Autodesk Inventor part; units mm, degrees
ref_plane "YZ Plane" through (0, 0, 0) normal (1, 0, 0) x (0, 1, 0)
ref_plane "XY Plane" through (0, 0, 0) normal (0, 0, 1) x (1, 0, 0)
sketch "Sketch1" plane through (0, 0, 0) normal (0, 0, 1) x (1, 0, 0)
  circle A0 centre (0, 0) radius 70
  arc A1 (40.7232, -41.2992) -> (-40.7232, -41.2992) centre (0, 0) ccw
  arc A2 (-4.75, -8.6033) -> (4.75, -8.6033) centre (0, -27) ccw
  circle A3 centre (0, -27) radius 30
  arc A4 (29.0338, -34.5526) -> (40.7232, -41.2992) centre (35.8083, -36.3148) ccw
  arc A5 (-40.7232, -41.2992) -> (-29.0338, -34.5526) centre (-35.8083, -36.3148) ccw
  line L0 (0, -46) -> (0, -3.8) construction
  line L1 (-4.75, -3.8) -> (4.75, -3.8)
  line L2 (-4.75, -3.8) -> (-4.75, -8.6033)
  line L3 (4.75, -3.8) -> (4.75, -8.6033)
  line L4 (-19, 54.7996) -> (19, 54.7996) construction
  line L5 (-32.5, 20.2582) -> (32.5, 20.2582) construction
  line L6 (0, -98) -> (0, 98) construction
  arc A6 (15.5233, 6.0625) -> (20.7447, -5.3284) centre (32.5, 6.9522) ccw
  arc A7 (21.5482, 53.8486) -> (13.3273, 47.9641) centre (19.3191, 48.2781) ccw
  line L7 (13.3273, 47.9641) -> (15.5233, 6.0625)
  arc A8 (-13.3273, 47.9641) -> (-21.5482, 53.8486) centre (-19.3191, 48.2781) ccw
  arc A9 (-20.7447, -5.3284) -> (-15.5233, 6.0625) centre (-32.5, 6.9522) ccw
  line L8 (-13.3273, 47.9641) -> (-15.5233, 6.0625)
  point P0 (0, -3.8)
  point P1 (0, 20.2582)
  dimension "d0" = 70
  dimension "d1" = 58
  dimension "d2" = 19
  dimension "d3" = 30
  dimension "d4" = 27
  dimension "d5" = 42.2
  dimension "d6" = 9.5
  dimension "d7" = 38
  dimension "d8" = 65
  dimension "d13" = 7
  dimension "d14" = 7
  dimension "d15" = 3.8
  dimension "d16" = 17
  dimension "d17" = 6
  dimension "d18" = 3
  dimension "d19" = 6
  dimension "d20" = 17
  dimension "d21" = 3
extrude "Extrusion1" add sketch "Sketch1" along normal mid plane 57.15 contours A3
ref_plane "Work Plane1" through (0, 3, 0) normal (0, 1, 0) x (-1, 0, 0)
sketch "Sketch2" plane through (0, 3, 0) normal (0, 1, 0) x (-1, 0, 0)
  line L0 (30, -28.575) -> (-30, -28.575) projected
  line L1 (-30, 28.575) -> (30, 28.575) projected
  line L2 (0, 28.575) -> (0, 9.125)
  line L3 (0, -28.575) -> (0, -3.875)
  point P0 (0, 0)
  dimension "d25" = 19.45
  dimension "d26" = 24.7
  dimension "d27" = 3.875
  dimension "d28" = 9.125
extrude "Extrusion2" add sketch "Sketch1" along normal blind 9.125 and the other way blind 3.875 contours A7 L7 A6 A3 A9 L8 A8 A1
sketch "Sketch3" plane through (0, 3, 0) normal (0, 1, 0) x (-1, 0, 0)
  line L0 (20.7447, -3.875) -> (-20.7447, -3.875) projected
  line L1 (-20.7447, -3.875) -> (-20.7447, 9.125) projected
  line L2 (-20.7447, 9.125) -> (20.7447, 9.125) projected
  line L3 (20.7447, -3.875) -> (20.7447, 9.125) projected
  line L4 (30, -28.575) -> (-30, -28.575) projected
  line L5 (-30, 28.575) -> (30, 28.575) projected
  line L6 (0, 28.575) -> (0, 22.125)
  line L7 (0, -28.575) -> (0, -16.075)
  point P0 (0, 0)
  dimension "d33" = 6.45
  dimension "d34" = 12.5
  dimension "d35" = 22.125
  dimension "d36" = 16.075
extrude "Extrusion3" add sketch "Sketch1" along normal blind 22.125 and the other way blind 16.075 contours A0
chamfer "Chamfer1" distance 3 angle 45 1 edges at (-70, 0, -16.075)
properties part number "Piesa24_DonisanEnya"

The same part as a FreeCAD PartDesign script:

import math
import FreeCAD as App
import Part
import Sketcher
from FreeCAD import Vector
Q = App.Units.Quantity


def edges_at(feature, points):
    """Names of the edges that pass closest to the given points."""
    edges = feature.Shape.Edges
    near = lambda p: min(range(len(edges)), key=lambda i: edges[i].distToShape(Part.Vertex(*p))[0])
    return sorted({f"Edge{near(p) + 1}" for p in points})

doc = App.newDocument("Part")
params = doc.addObject("Spreadsheet::Sheet", "Params")
for row, (alias, value) in enumerate([
    ("sketch1_diameter", "60 mm"),
    ("sketch1_radius", "19 mm"),
    ("sketch1_width", "9.5 mm"),
    ("pad1_length", "57.15 mm"),
    ("sketch2_radius", "6 mm"),
    ("sketch2_radius2", "58 mm"),
    ("sketch2_radius3", "17 mm"),
    ("sketch2_radius4", "30 mm"),
    ("pad2_length", "9.125 mm"),
    ("pad2_length2", "3.875 mm"),
    ("sketch3_diameter", "140 mm"),
    ("sketch3_radius", "58 mm"),
    ("sketch3_radius2", "7 mm"),
    ("sketch3_radius3", "30 mm"),
    ("pad3_length", "22.125 mm"),
    ("pad3_length2", "16.075 mm"),
    ("chamfer_size", "3 mm"),
], start=1):
    params.set(f"A{row}", alias)
    params.set(f"B{row}", "=" + value)
    params.setAlias(f"B{row}", alias)

body = doc.addObject("PartDesign::Body", "Body")

sketch1 = doc.addObject("Sketcher::SketchObject", "Sketch")
body.addObject(sketch1)
sketch1.AttachmentSupport = (doc.XY_Plane, [""])
sketch1.MapMode = "FlatFace"
sketch1.addGeometry([
    Part.Circle(Vector(0, -27, 0), Vector(0, 0, 1), 30),
    Part.ArcOfCircle(Part.Circle(Vector(0, -27, 0), Vector(0, 0, 1), 19), math.radians(104), math.radians(436)),
    Part.LineSegment(Vector(-4.8, -8.6, 0), Vector(-4.8, -3.8, 0)),
    Part.LineSegment(Vector(-4.8, -3.8, 0), Vector(4.8, -3.8, 0)),
    Part.LineSegment(Vector(4.8, -3.8, 0), Vector(4.8, -8.6, 0)),
], False)
sketch1.addConstraint([
    Sketcher.Constraint("Coincident", 1, 1, 2, 1),
    Sketcher.Constraint("Coincident", 2, 2, 3, 1),
    Sketcher.Constraint("Coincident", 3, 2, 4, 1),
    Sketcher.Constraint("Coincident", 4, 2, 1, 2),
    Sketcher.Constraint("Vertical", 2),
    Sketcher.Constraint("Horizontal", 3),
    Sketcher.Constraint("Vertical", 4),
    Sketcher.Constraint("Coincident", 1, 3, 0, 3),
    Sketcher.Constraint("Symmetric", 1, 1, 4, 2, -2),
    Sketcher.Constraint("Diameter", 0, 60.0),
    Sketcher.Constraint("Radius", 1, 19.0),
    Sketcher.Constraint("DistanceX", 3, 1, 3, 2, 9.5),
    Sketcher.Constraint("DistanceY", 0, 3, -1, 1, 27.0),
    Sketcher.Constraint("DistanceY", 2, 2, -1, 1, 3.8),
])
sketch1.setExpression("Constraints[9]", "Params.sketch1_diameter")
sketch1.setExpression("Constraints[10]", "Params.sketch1_radius")
sketch1.setExpression("Constraints[11]", "Params.sketch1_width")
pad1 = doc.addObject("PartDesign::Pad", "Pad")
body.addObject(pad1)
pad1.Profile = sketch1
pad1.setExpression("Length", "Params.pad1_length")
pad1.Midplane = True

sketch2 = doc.addObject("Sketcher::SketchObject", "Sketch001")
body.addObject(sketch2)
sketch2.AttachmentSupport = (doc.XY_Plane, [""])
sketch2.MapMode = "FlatFace"
sketch2.addGeometry([
    Part.ArcOfCircle(Part.Circle(Vector(19, 48, 0), Vector(0, 0, 1), 6), math.radians(68), math.radians(183)),
    Part.ArcOfCircle(Part.Circle(Vector(0, 0, 0), Vector(0, 0, 1), 58), math.radians(68), math.radians(112)),
    Part.ArcOfCircle(Part.Circle(Vector(-19, 48, 0), Vector(0, 0, 1), 6), math.radians(-3), math.radians(112)),
    Part.LineSegment(Vector(-13, 48, 0), Vector(-16, 6, 0)),
    Part.ArcOfCircle(Part.Circle(Vector(-32, 7, 0), Vector(0, 0, 1), 17), math.radians(-46), math.radians(-3)),
    Part.ArcOfCircle(Part.Circle(Vector(0, -27, 0), Vector(0, 0, 1), 30), math.radians(46), math.radians(134)),
    Part.ArcOfCircle(Part.Circle(Vector(32, 7, 0), Vector(0, 0, 1), 17), math.radians(-177), math.radians(-134)),
    Part.LineSegment(Vector(16, 6, 0), Vector(13, 48, 0)),
], False)
sketch2.addConstraint([
    Sketcher.Constraint("Tangent", 0, 1, 1, 1),
    Sketcher.Constraint("Tangent", 1, 2, 2, 2),
    Sketcher.Constraint("Tangent", 2, 1, 3, 1),
    Sketcher.Constraint("Tangent", 3, 2, 4, 2),
    Sketcher.Constraint("Tangent", 4, 1, 5, 2),
    Sketcher.Constraint("Tangent", 5, 1, 6, 2),
    Sketcher.Constraint("Tangent", 6, 1, 7, 1),
    Sketcher.Constraint("Tangent", 7, 2, 0, 2),
    Sketcher.Constraint("Coincident", 1, 3, -1, 1),
    Sketcher.Constraint("Equal", 0, 2),
    Sketcher.Constraint("Equal", 4, 6),
    Sketcher.Constraint("Symmetric", 4, 3, 6, 3, -2),
    Sketcher.Constraint("Horizontal", 0, 3, 2, 3),
    Sketcher.Constraint("Radius", 0, 6.0),
    Sketcher.Constraint("Radius", 1, 58.0),
    Sketcher.Constraint("Radius", 4, 17.0),
    Sketcher.Constraint("Radius", 5, 30.0),
    Sketcher.Constraint("DistanceY", 5, 3, -1, 1, 27.0),
    Sketcher.Constraint("DistanceX", 4, 3, 6, 3, 65.0),
    Sketcher.Constraint("Angle", 3, Q("-93 deg")),
])
sketch2.setExpression("Constraints[13]", "Params.sketch2_radius")
sketch2.setExpression("Constraints[14]", "Params.sketch2_radius2")
sketch2.setExpression("Constraints[15]", "Params.sketch2_radius3")
sketch2.setExpression("Constraints[16]", "Params.sketch2_radius4")
pad2 = doc.addObject("PartDesign::Pad", "Pad001")
body.addObject(pad2)
pad2.Profile = sketch2
pad2.Type = "TwoLengths"
pad2.setExpression("Length", "Params.pad2_length")
pad2.setExpression("Length2", "Params.pad2_length2")

sketch3 = doc.addObject("Sketcher::SketchObject", "Sketch002")
body.addObject(sketch3)
sketch3.AttachmentSupport = (doc.XY_Plane, [""])
sketch3.MapMode = "FlatFace"
sketch3.addGeometry([
    Part.Circle(Vector(0, 0, 0), Vector(0, 0, 1), 70),
    Part.ArcOfCircle(Part.Circle(Vector(0, 0, 0), Vector(0, 0, 1), 58), math.radians(-45), math.radians(225)),
    Part.ArcOfCircle(Part.Circle(Vector(36, -36, 0), Vector(0, 0, 1), 7), math.radians(165), math.radians(315)),
    Part.ArcOfCircle(Part.Circle(Vector(0, -27, 0), Vector(0, 0, 1), 30), math.radians(-165), math.radians(-15)),
    Part.ArcOfCircle(Part.Circle(Vector(-36, -36, 0), Vector(0, 0, 1), 7), math.radians(-135), math.radians(15)),
], False)
sketch3.addConstraint([
    Sketcher.Constraint("Tangent", 1, 1, 2, 2),
    Sketcher.Constraint("Tangent", 2, 1, 3, 2),
    Sketcher.Constraint("Tangent", 3, 1, 4, 2),
    Sketcher.Constraint("Tangent", 4, 1, 1, 2),
    Sketcher.Constraint("Coincident", 0, 3, -1, 1),
    Sketcher.Constraint("Coincident", 1, 3, -1, 1),
    Sketcher.Constraint("Equal", 2, 4),
    Sketcher.Constraint("PointOnObject", 3, 3, -2),
    Sketcher.Constraint("Diameter", 0, 140.0),
    Sketcher.Constraint("Radius", 1, 58.0),
    Sketcher.Constraint("Radius", 2, 7.0),
    Sketcher.Constraint("Radius", 3, 30.0),
    Sketcher.Constraint("DistanceY", 3, 3, -1, 1, 27.0),
])
sketch3.setExpression("Constraints[8]", "Params.sketch3_diameter")
sketch3.setExpression("Constraints[9]", "Params.sketch3_radius")
sketch3.setExpression("Constraints[10]", "Params.sketch3_radius2")
sketch3.setExpression("Constraints[11]", "Params.sketch3_radius3")
pad3 = doc.addObject("PartDesign::Pad", "Pad002")
body.addObject(pad3)
pad3.Profile = sketch3
pad3.Type = "TwoLengths"
pad3.setExpression("Length", "Params.pad3_length")
pad3.setExpression("Length2", "Params.pad3_length2")
doc.recompute()

chamfer = doc.addObject("PartDesign::Chamfer", "Chamfer")
body.addObject(chamfer)
chamfer.Base = (pad3, edges_at(pad3, [(-70, 0, -16.075)]))
chamfer.setExpression("Size", "Params.chamfer_size")

doc.recompute()
